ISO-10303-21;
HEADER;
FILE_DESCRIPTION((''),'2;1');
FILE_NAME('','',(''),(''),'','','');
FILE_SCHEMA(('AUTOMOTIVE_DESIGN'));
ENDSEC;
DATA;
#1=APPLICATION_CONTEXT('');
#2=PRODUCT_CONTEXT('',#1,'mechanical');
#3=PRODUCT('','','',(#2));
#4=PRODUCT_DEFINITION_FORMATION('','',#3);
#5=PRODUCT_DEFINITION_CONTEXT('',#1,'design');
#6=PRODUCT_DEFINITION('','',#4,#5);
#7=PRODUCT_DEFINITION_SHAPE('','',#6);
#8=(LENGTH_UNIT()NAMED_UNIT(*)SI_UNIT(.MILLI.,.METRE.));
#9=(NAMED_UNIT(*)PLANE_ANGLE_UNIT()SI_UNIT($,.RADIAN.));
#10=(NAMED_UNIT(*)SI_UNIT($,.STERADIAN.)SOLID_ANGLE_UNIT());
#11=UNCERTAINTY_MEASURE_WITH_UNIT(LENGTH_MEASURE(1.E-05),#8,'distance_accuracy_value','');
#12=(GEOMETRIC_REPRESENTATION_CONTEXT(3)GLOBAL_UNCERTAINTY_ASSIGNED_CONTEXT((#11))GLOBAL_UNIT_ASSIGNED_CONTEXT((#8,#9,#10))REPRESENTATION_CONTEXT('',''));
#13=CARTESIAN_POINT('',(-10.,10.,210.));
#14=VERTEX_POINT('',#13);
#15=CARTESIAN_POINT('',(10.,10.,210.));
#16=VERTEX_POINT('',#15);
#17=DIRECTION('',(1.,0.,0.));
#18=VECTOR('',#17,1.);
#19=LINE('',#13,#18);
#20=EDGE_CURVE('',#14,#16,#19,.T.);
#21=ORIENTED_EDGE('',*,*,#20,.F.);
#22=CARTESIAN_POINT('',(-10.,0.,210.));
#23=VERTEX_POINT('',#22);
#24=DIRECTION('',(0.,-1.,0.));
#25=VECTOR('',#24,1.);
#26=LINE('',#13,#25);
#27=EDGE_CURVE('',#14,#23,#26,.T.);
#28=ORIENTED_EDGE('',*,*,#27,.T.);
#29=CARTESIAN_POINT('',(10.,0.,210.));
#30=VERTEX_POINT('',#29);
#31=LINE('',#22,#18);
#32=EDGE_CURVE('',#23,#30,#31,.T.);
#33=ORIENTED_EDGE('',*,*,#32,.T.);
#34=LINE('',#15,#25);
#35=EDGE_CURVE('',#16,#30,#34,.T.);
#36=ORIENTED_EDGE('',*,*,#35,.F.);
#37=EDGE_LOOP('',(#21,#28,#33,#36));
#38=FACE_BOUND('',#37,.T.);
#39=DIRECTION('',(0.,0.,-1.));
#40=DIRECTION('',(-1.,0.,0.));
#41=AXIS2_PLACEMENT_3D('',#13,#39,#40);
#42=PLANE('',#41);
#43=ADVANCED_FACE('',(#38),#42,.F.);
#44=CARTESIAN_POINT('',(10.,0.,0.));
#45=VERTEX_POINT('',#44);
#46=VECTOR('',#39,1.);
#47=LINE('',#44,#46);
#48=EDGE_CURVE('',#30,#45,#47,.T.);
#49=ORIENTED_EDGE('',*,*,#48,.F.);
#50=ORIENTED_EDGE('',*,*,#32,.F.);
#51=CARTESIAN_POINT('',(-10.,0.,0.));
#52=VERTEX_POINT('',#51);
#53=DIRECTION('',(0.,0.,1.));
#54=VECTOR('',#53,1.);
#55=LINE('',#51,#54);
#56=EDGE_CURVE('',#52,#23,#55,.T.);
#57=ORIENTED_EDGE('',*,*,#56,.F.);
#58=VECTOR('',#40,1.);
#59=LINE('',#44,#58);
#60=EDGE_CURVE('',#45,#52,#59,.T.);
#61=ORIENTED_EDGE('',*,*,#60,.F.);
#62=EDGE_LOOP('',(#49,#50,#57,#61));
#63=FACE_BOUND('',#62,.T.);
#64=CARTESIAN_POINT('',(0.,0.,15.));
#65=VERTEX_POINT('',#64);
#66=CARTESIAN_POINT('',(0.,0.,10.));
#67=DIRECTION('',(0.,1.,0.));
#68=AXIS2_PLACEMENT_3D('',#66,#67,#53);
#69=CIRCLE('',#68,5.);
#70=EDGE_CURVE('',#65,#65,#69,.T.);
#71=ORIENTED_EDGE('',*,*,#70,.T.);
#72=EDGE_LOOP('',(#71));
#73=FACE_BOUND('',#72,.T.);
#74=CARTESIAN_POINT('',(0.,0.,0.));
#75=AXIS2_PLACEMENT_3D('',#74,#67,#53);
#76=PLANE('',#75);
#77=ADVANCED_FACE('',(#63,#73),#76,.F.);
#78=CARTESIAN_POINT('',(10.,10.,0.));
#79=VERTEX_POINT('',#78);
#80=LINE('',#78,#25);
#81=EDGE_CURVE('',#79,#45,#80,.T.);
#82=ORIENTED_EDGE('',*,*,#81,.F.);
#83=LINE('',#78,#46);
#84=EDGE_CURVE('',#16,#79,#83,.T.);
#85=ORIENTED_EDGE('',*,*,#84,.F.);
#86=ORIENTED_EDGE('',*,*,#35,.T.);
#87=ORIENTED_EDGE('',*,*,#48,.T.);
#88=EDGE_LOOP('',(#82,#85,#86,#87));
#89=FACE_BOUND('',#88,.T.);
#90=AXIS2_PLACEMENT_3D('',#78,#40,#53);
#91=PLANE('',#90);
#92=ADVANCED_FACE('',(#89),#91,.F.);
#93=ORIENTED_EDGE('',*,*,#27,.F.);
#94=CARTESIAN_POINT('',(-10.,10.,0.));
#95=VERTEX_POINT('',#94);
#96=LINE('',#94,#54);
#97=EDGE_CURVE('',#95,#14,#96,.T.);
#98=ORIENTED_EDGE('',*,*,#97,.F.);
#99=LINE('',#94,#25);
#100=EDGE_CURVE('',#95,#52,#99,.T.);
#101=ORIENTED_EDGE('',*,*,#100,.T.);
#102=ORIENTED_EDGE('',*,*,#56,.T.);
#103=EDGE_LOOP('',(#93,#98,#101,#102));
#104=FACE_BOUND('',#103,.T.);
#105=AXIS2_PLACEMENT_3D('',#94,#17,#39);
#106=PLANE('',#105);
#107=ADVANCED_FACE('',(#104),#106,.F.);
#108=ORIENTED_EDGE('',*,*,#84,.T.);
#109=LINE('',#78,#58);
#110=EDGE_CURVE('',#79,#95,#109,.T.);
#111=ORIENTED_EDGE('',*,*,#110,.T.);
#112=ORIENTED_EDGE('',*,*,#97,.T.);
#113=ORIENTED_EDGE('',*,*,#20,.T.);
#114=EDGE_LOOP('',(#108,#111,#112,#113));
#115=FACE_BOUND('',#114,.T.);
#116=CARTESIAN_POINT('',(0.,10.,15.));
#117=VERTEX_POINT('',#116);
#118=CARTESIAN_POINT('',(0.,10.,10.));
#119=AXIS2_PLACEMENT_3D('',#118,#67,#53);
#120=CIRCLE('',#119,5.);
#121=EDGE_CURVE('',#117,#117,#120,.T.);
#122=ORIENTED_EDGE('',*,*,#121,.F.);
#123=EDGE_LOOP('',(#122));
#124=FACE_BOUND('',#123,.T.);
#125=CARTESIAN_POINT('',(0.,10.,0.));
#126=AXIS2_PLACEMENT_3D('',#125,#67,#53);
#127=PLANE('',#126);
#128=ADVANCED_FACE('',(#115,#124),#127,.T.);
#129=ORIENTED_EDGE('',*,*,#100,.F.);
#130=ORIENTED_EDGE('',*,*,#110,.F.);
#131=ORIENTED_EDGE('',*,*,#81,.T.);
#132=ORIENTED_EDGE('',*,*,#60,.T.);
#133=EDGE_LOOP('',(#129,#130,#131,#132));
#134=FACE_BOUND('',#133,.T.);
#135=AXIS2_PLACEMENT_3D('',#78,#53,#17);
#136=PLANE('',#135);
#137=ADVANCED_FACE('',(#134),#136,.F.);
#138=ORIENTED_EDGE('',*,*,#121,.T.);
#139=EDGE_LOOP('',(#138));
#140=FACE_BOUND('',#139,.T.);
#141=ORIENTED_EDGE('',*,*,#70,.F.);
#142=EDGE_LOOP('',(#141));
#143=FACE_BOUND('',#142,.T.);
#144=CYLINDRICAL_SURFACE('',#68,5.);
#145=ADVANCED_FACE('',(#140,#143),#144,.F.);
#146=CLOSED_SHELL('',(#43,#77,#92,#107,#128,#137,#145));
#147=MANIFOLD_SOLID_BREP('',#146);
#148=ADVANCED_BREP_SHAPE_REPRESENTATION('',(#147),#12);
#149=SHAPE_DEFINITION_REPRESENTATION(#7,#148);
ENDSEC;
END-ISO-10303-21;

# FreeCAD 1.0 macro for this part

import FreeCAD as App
import Part
import Sketcher
from FreeCAD import Vector
Q = App.Units.Quantity


def add_polygon(sketch, points):
    """Adds a closed chain of lines whose ends are joined by coincident constraints."""
    first, n = sketch.GeometryCount, len(points)
    for a, b in zip(points, points[1:] + points[:1]):
        sketch.addGeometry(Part.LineSegment(App.Vector(*a, 0), App.Vector(*b, 0)), False)
    for i in range(n):
        sketch.addConstraint(Sketcher.Constraint("Coincident", first + i, 2, first + (i + 1) % n, 1))

doc = App.newDocument("Part")
body = doc.addObject("PartDesign::Body", "Body")

# Sketch on XZ plane
sketch1 = doc.addObject("Sketcher::SketchObject", "Sketch")
body.addObject(sketch1)
sketch1.AttachmentSupport = (doc.XZ_Plane, [""])
sketch1.MapMode = "FlatFace"
add_polygon(sketch1, [(-10, 0), (-10, 210), (10, 210), (10, 0)])  # lines 0-3
sketch1.addConstraint([
    Sketcher.Constraint("Vertical", 0),
    Sketcher.Constraint("Horizontal", 1),
    Sketcher.Constraint("Vertical", 2),
    Sketcher.Constraint("Horizontal", 3),
    Sketcher.Constraint("Symmetric", 2, 2, 3, 2, -1, 1),
    Sketcher.Constraint("DistanceX", 1, 1, 1, 2, Q("20 mm")),
    Sketcher.Constraint("DistanceY", 0, 1, 0, 2, Q("210 mm")),
])
pad1 = doc.addObject("PartDesign::Pad", "Pad")
body.addObject(pad1)
pad1.Profile = sketch1
pad1.Length = 10
pad1.Reversed = True

# Sketch on XZ plane
sketch2 = doc.addObject("Sketcher::SketchObject", "Sketch001")
body.addObject(sketch2)
sketch2.AttachmentSupport = (doc.XZ_Plane, [""])
sketch2.MapMode = "FlatFace"
sketch2.AttachmentOffset = App.Placement(Vector(0, 0, -10), App.Rotation())
sketch2.addGeometry(Part.Circle(Vector(0, 10, 0), Vector(0, 0, 1), 5), False)
sketch2.addConstraint([
    Sketcher.Constraint("PointOnObject", 0, 3, -2),
    Sketcher.Constraint("Diameter", 0, Q("10 mm")),
    Sketcher.Constraint("DistanceY", -1, 1, 0, 3, Q("10 mm")),
])
pocket1 = doc.addObject("PartDesign::Pocket", "Pocket")
body.addObject(pocket1)
pocket1.Profile = sketch2
pocket1.Length = 10
pocket1.Reversed = True

doc.recompute()
